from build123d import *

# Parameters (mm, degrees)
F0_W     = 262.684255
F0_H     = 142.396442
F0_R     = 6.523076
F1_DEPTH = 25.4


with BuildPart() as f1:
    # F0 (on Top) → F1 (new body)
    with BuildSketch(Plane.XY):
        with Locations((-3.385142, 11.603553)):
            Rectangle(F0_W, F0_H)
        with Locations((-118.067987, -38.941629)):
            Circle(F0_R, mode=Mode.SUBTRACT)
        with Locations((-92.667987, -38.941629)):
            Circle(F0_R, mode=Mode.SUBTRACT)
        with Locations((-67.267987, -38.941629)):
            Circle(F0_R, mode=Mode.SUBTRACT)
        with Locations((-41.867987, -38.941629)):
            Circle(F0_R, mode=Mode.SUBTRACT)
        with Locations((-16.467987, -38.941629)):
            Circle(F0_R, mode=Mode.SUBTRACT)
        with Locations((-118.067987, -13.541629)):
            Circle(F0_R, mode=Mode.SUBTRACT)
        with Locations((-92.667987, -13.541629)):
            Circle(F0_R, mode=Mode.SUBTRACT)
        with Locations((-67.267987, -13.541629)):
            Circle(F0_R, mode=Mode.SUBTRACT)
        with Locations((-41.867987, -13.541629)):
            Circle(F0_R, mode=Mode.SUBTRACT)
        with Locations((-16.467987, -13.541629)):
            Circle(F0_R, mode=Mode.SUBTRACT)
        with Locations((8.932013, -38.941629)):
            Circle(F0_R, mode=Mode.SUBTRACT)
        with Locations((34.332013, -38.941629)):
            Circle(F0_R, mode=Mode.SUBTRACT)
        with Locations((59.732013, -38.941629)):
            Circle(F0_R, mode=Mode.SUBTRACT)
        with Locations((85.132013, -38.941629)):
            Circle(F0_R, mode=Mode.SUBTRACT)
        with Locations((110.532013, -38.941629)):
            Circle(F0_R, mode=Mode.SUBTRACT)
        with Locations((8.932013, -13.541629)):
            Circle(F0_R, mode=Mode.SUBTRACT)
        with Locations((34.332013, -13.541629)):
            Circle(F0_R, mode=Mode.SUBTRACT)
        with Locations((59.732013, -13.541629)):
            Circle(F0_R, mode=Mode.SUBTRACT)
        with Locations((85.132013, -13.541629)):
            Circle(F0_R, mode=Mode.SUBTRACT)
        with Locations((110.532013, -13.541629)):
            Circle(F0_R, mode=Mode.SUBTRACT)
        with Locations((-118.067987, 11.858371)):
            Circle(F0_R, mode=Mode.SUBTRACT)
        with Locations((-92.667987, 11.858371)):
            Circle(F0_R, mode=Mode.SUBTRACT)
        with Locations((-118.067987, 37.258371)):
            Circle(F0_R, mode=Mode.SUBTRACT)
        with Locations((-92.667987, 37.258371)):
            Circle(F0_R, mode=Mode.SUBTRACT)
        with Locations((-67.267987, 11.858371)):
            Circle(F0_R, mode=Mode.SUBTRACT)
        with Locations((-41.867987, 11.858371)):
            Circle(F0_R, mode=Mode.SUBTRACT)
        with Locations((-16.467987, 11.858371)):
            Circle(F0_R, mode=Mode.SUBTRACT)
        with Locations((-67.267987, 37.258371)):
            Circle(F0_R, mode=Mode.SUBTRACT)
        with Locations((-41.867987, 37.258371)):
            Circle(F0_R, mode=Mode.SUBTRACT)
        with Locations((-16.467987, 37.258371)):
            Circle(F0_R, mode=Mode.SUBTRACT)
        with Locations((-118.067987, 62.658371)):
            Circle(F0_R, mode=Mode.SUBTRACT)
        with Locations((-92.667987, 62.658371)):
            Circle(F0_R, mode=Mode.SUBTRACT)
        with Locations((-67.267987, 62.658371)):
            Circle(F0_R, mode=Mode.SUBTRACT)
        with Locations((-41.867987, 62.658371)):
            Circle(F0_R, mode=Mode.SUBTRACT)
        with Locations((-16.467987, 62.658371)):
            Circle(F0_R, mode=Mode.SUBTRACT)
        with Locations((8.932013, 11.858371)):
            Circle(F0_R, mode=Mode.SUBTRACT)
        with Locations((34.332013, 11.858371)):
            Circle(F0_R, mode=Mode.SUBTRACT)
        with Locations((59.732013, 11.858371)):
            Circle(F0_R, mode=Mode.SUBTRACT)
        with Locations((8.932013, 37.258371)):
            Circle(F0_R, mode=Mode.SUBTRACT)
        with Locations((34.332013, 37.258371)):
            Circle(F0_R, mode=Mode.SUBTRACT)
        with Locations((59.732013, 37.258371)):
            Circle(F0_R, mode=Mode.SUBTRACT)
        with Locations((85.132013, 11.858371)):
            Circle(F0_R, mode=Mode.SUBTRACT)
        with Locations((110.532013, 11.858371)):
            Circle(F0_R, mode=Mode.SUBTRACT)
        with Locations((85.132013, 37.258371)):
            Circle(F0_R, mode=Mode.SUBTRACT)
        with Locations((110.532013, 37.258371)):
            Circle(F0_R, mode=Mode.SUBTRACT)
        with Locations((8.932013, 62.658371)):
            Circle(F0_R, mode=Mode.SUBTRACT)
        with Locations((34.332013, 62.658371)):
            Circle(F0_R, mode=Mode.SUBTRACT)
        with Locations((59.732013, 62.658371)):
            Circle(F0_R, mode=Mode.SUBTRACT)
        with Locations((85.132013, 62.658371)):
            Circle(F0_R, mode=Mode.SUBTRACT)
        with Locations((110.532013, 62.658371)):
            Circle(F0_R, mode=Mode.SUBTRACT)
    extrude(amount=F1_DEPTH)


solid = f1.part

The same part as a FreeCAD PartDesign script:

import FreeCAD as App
import Part
import Sketcher

V = App.Vector
Q = App.Units.Quantity

doc = App.newDocument("Part")
body = doc.addObject("PartDesign::Body", "Body")

# Sketch on XY plane
sketch1 = doc.addObject("Sketcher::SketchObject", "Sketch")
body.addObject(sketch1)
sketch1.AttachmentSupport = (doc.XY_Plane, [""])
sketch1.MapMode = "FlatFace"
sketch1.addGeometry(Part.LineSegment(V(-134.72727, 82.801774, 0), V(-134.72727, -59.594668, 0)), False)
sketch1.addGeometry(Part.LineSegment(V(-134.72727, -59.594668, 0), V(127.956986, -59.594668, 0)), False)
sketch1.addGeometry(Part.LineSegment(V(127.956986, -59.594668, 0), V(127.956986, 82.801774, 0)), False)
sketch1.addGeometry(Part.LineSegment(V(127.956986, 82.801774, 0), V(-134.72727, 82.801774, 0)), False)
sketch1.addGeometry(Part.Circle(V(-118.067987, -38.941629, 0), V(0, 0, 1), 6.523076), False)
sketch1.addGeometry(Part.Circle(V(-92.667987, -38.941629, 0), V(0, 0, 1), 6.523076), False)
sketch1.addGeometry(Part.Circle(V(-67.267987, -38.941629, 0), V(0, 0, 1), 6.523076), False)
sketch1.addGeometry(Part.Circle(V(-41.867987, -38.941629, 0), V(0, 0, 1), 6.523076), False)
sketch1.addGeometry(Part.Circle(V(-16.467987, -38.941629, 0), V(0, 0, 1), 6.523076), False)
sketch1.addGeometry(Part.Circle(V(-118.067987, -13.541629, 0), V(0, 0, 1), 6.523076), False)
sketch1.addGeometry(Part.Circle(V(-92.667987, -13.541629, 0), V(0, 0, 1), 6.523076), False)
sketch1.addGeometry(Part.Circle(V(-67.267987, -13.541629, 0), V(0, 0, 1), 6.523076), False)
sketch1.addGeometry(Part.Circle(V(-118.067987, 11.858371, 0), V(0, 0, 1), 6.523076), False)
sketch1.addGeometry(Part.Circle(V(-92.667987, 11.858371, 0), V(0, 0, 1), 6.523076), False)
sketch1.addGeometry(Part.Circle(V(-67.267987, 11.858371, 0), V(0, 0, 1), 6.523076), False)
sketch1.addGeometry(Part.Circle(V(-41.867987, -13.541629, 0), V(0, 0, 1), 6.523076), False)
sketch1.addGeometry(Part.Circle(V(-16.467987, -13.541629, 0), V(0, 0, 1), 6.523076), False)
sketch1.addGeometry(Part.Circle(V(-41.867987, 11.858371, 0), V(0, 0, 1), 6.523076), False)
sketch1.addGeometry(Part.Circle(V(-16.467987, 11.858371, 0), V(0, 0, 1), 6.523076), False)
sketch1.addGeometry(Part.Circle(V(8.932013, -38.941629, 0), V(0, 0, 1), 6.523076), False)
sketch1.addGeometry(Part.Circle(V(34.332013, -38.941629, 0), V(0, 0, 1), 6.523076), False)
sketch1.addGeometry(Part.Circle(V(59.732013, -38.941629, 0), V(0, 0, 1), 6.523076), False)
sketch1.addGeometry(Part.Circle(V(85.132013, -38.941629, 0), V(0, 0, 1), 6.523076), False)
sketch1.addGeometry(Part.Circle(V(110.532013, -38.941629, 0), V(0, 0, 1), 6.523076), False)
sketch1.addGeometry(Part.Circle(V(8.932013, -13.541629, 0), V(0, 0, 1), 6.523076), False)
sketch1.addGeometry(Part.Circle(V(34.332013, -13.541629, 0), V(0, 0, 1), 6.523076), False)
sketch1.addGeometry(Part.Circle(V(8.932013, 11.858371, 0), V(0, 0, 1), 6.523076), False)
sketch1.addGeometry(Part.Circle(V(34.332013, 11.858371, 0), V(0, 0, 1), 6.523076), False)
sketch1.addGeometry(Part.Circle(V(59.732013, -13.541629, 0), V(0, 0, 1), 6.523076), False)
sketch1.addGeometry(Part.Circle(V(85.132013, -13.541629, 0), V(0, 0, 1), 6.523076), False)
sketch1.addGeometry(Part.Circle(V(110.532013, -13.541629, 0), V(0, 0, 1), 6.523076), False)
sketch1.addGeometry(Part.Circle(V(59.732013, 11.858371, 0), V(0, 0, 1), 6.523076), False)
sketch1.addGeometry(Part.Circle(V(85.132013, 11.858371, 0), V(0, 0, 1), 6.523076), False)
sketch1.addGeometry(Part.Circle(V(110.532013, 11.858371, 0), V(0, 0, 1), 6.523076), False)
sketch1.addGeometry(Part.Circle(V(-118.067987, 37.258371, 0), V(0, 0, 1), 6.523076), False)
sketch1.addGeometry(Part.Circle(V(-92.667987, 37.258371, 0), V(0, 0, 1), 6.523076), False)
sketch1.addGeometry(Part.Circle(V(-67.267987, 37.258371, 0), V(0, 0, 1), 6.523076), False)
sketch1.addGeometry(Part.Circle(V(-41.867987, 37.258371, 0), V(0, 0, 1), 6.523076), False)
sketch1.addGeometry(Part.Circle(V(-16.467987, 37.258371, 0), V(0, 0, 1), 6.523076), False)
sketch1.addGeometry(Part.Circle(V(-118.067987, 62.658371, 0), V(0, 0, 1), 6.523076), False)
sketch1.addGeometry(Part.Circle(V(-92.667987, 62.658371, 0), V(0, 0, 1), 6.523076), False)
sketch1.addGeometry(Part.Circle(V(-67.267987, 62.658371, 0), V(0, 0, 1), 6.523076), False)
sketch1.addGeometry(Part.Circle(V(-41.867987, 62.658371, 0), V(0, 0, 1), 6.523076), False)
sketch1.addGeometry(Part.Circle(V(-16.467987, 62.658371, 0), V(0, 0, 1), 6.523076), False)
sketch1.addGeometry(Part.Circle(V(8.932013, 37.258371, 0), V(0, 0, 1), 6.523076), False)
sketch1.addGeometry(Part.Circle(V(34.332013, 37.258371, 0), V(0, 0, 1), 6.523076), False)
sketch1.addGeometry(Part.Circle(V(59.732013, 37.258371, 0), V(0, 0, 1), 6.523076), False)
sketch1.addGeometry(Part.Circle(V(85.132013, 37.258371, 0), V(0, 0, 1), 6.523076), False)
sketch1.addGeometry(Part.Circle(V(110.532013, 37.258371, 0), V(0, 0, 1), 6.523076), False)
sketch1.addGeometry(Part.Circle(V(8.932013, 62.658371, 0), V(0, 0, 1), 6.523076), False)
sketch1.addGeometry(Part.Circle(V(34.332013, 62.658371, 0), V(0, 0, 1), 6.523076), False)
sketch1.addGeometry(Part.Circle(V(59.732013, 62.658371, 0), V(0, 0, 1), 6.523076), False)
sketch1.addGeometry(Part.Circle(V(85.132013, 62.658371, 0), V(0, 0, 1), 6.523076), False)
sketch1.addGeometry(Part.Circle(V(110.532013, 62.658371, 0), V(0, 0, 1), 6.523076), False)
sketch1.addConstraint(Sketcher.Constraint("Coincident", 0, 2, 1, 1))
sketch1.addConstraint(Sketcher.Constraint("Coincident", 1, 2, 2, 1))
sketch1.addConstraint(Sketcher.Constraint("Coincident", 2, 2, 3, 1))
sketch1.addConstraint(Sketcher.Constraint("Coincident", 3, 2, 0, 1))
sketch1.addConstraint(Sketcher.Constraint("Vertical", 0))
sketch1.addConstraint(Sketcher.Constraint("Horizontal", 1))
sketch1.addConstraint(Sketcher.Constraint("Vertical", 2))
sketch1.addConstraint(Sketcher.Constraint("Horizontal", 3))
sketch1.addConstraint(Sketcher.Constraint("Equal", 4, 5))
sketch1.addConstraint(Sketcher.Constraint("Equal", 5, 6))
sketch1.addConstraint(Sketcher.Constraint("Equal", 6, 7))
sketch1.addConstraint(Sketcher.Constraint("Equal", 7, 8))
sketch1.addConstraint(Sketcher.Constraint("Equal", 8, 9))
sketch1.addConstraint(Sketcher.Constraint("Equal", 9, 10))
sketch1.addConstraint(Sketcher.Constraint("Equal", 10, 11))
sketch1.addConstraint(Sketcher.Constraint("Equal", 11, 12))
sketch1.addConstraint(Sketcher.Constraint("Equal", 12, 13))
sketch1.addConstraint(Sketcher.Constraint("Equal", 13, 14))
sketch1.addConstraint(Sketcher.Constraint("Equal", 14, 15))
sketch1.addConstraint(Sketcher.Constraint("Equal", 15, 16))
sketch1.addConstraint(Sketcher.Constraint("Equal", 16, 17))
sketch1.addConstraint(Sketcher.Constraint("Equal", 17, 18))
sketch1.addConstraint(Sketcher.Constraint("Equal", 18, 19))
sketch1.addConstraint(Sketcher.Constraint("Equal", 19, 20))
sketch1.addConstraint(Sketcher.Constraint("Equal", 20, 21))
sketch1.addConstraint(Sketcher.Constraint("Equal", 21, 22))
sketch1.addConstraint(Sketcher.Constraint("Equal", 22, 23))
sketch1.addConstraint(Sketcher.Constraint("Equal", 23, 24))
sketch1.addConstraint(Sketcher.Constraint("Equal", 24, 25))
sketch1.addConstraint(Sketcher.Constraint("Equal", 25, 26))
sketch1.addConstraint(Sketcher.Constraint("Equal", 26, 27))
sketch1.addConstraint(Sketcher.Constraint("Equal", 27, 28))
sketch1.addConstraint(Sketcher.Constraint("Equal", 28, 29))
sketch1.addConstraint(Sketcher.Constraint("Equal", 29, 30))
sketch1.addConstraint(Sketcher.Constraint("Equal", 30, 31))
sketch1.addConstraint(Sketcher.Constraint("Equal", 31, 32))
sketch1.addConstraint(Sketcher.Constraint("Equal", 32, 33))
sketch1.addConstraint(Sketcher.Constraint("Equal", 33, 34))
sketch1.addConstraint(Sketcher.Constraint("Equal", 34, 35))
sketch1.addConstraint(Sketcher.Constraint("Equal", 35, 36))
sketch1.addConstraint(Sketcher.Constraint("Equal", 36, 37))
sketch1.addConstraint(Sketcher.Constraint("Equal", 37, 38))
sketch1.addConstraint(Sketcher.Constraint("Equal", 38, 39))
sketch1.addConstraint(Sketcher.Constraint("Equal", 39, 40))
sketch1.addConstraint(Sketcher.Constraint("Equal", 40, 41))
sketch1.addConstraint(Sketcher.Constraint("Equal", 41, 42))
sketch1.addConstraint(Sketcher.Constraint("Equal", 42, 43))
sketch1.addConstraint(Sketcher.Constraint("Equal", 43, 44))
sketch1.addConstraint(Sketcher.Constraint("Equal", 44, 45))
sketch1.addConstraint(Sketcher.Constraint("Equal", 45, 46))
sketch1.addConstraint(Sketcher.Constraint("Equal", 46, 47))
sketch1.addConstraint(Sketcher.Constraint("Equal", 47, 48))
sketch1.addConstraint(Sketcher.Constraint("Equal", 48, 49))
sketch1.addConstraint(Sketcher.Constraint("Equal", 49, 50))
sketch1.addConstraint(Sketcher.Constraint("Equal", 50, 51))
sketch1.addConstraint(Sketcher.Constraint("Equal", 51, 52))
sketch1.addConstraint(Sketcher.Constraint("Equal", 52, 53))
sketch1.addConstraint(Sketcher.Constraint("Horizontal", 4, 3, 5, 3))
sketch1.addConstraint(Sketcher.Constraint("Horizontal", 5, 3, 6, 3))
sketch1.addConstraint(Sketcher.Constraint("Horizontal", 6, 3, 7, 3))
sketch1.addConstraint(Sketcher.Constraint("Horizontal", 7, 3, 8, 3))
sketch1.addConstraint(Sketcher.Constraint("Horizontal", 9, 3, 10, 3))
sketch1.addConstraint(Sketcher.Constraint("Horizontal", 10, 3, 11, 3))
sketch1.addConstraint(Sketcher.Constraint("Horizontal", 12, 3, 13, 3))
sketch1.addConstraint(Sketcher.Constraint("Horizontal", 13, 3, 14, 3))
sketch1.addConstraint(Sketcher.Constraint("Horizontal", 11, 3, 15, 3))
sketch1.addConstraint(Sketcher.Constraint("Horizontal", 15, 3, 16, 3))
sketch1.addConstraint(Sketcher.Constraint("Horizontal", 14, 3, 17, 3))
sketch1.addConstraint(Sketcher.Constraint("Horizontal", 17, 3, 18, 3))
sketch1.addConstraint(Sketcher.Constraint("Horizontal", 8, 3, 19, 3))
sketch1.addConstraint(Sketcher.Constraint("Horizontal", 19, 3, 20, 3))
sketch1.addConstraint(Sketcher.Constraint("Horizontal", 20, 3, 21, 3))
sketch1.addConstraint(Sketcher.Constraint("Horizontal", 21, 3, 22, 3))
sketch1.addConstraint(Sketcher.Constraint("Horizontal", 22, 3, 23, 3))
sketch1.addConstraint(Sketcher.Constraint("Horizontal", 16, 3, 24, 3))
sketch1.addConstraint(Sketcher.Constraint("Horizontal", 24, 3, 25, 3))
sketch1.addConstraint(Sketcher.Constraint("Horizontal", 18, 3, 26, 3))
sketch1.addConstraint(Sketcher.Constraint("Horizontal", 26, 3, 27, 3))
sketch1.addConstraint(Sketcher.Constraint("Horizontal", 25, 3, 28, 3))
sketch1.addConstraint(Sketcher.Constraint("Horizontal", 28, 3, 29, 3))
sketch1.addConstraint(Sketcher.Constraint("Horizontal", 29, 3, 30, 3))
sketch1.addConstraint(Sketcher.Constraint("Horizontal", 27, 3, 31, 3))
sketch1.addConstraint(Sketcher.Constraint("Horizontal", 31, 3, 32, 3))
sketch1.addConstraint(Sketcher.Constraint("Horizontal", 32, 3, 33, 3))
sketch1.addConstraint(Sketcher.Constraint("Horizontal", 34, 3, 35, 3))
sketch1.addConstraint(Sketcher.Constraint("Horizontal", 35, 3, 36, 3))
sketch1.addConstraint(Sketcher.Constraint("Horizontal", 36, 3, 37, 3))
sketch1.addConstraint(Sketcher.Constraint("Horizontal", 37, 3, 38, 3))
sketch1.addConstraint(Sketcher.Constraint("Horizontal", 39, 3, 40, 3))
sketch1.addConstraint(Sketcher.Constraint("Horizontal", 40, 3, 41, 3))
sketch1.addConstraint(Sketcher.Constraint("Horizontal", 41, 3, 42, 3))
sketch1.addConstraint(Sketcher.Constraint("Horizontal", 42, 3, 43, 3))
sketch1.addConstraint(Sketcher.Constraint("Horizontal", 38, 3, 44, 3))
sketch1.addConstraint(Sketcher.Constraint("Horizontal", 44, 3, 45, 3))
sketch1.addConstraint(Sketcher.Constraint("Horizontal", 45, 3, 46, 3))
sketch1.addConstraint(Sketcher.Constraint("Horizontal", 46, 3, 47, 3))
sketch1.addConstraint(Sketcher.Constraint("Horizontal", 47, 3, 48, 3))
sketch1.addConstraint(Sketcher.Constraint("Horizontal", 43, 3, 49, 3))
sketch1.addConstraint(Sketcher.Constraint("Horizontal", 49, 3, 50, 3))
sketch1.addConstraint(Sketcher.Constraint("Horizontal", 50, 3, 51, 3))
sketch1.addConstraint(Sketcher.Constraint("Horizontal", 51, 3, 52, 3))
sketch1.addConstraint(Sketcher.Constraint("Horizontal", 52, 3, 53, 3))
sketch1.addConstraint(Sketcher.Constraint("Vertical", 4, 3, 9, 3))
sketch1.addConstraint(Sketcher.Constraint("Vertical", 5, 3, 10, 3))
sketch1.addConstraint(Sketcher.Constraint("Vertical", 6, 3, 11, 3))
sketch1.addConstraint(Sketcher.Constraint("Vertical", 9, 3, 12, 3))
sketch1.addConstraint(Sketcher.Constraint("Vertical", 10, 3, 13, 3))
sketch1.addConstraint(Sketcher.Constraint("Vertical", 11, 3, 14, 3))
sketch1.addConstraint(Sketcher.Constraint("Vertical", 7, 3, 15, 3))
sketch1.addConstraint(Sketcher.Constraint("Vertical", 8, 3, 16, 3))
sketch1.addConstraint(Sketcher.Constraint("Vertical", 15, 3, 17, 3))
sketch1.addConstraint(Sketcher.Constraint("Vertical", 16, 3, 18, 3))
sketch1.addConstraint(Sketcher.Constraint("Vertical", 19, 3, 24, 3))
sketch1.addConstraint(Sketcher.Constraint("Vertical", 20, 3, 25, 3))
sketch1.addConstraint(Sketcher.Constraint("Vertical", 24, 3, 26, 3))
sketch1.addConstraint(Sketcher.Constraint("Vertical", 25, 3, 27, 3))
sketch1.addConstraint(Sketcher.Constraint("Vertical", 21, 3, 28, 3))
sketch1.addConstraint(Sketcher.Constraint("Vertical", 22, 3, 29, 3))
sketch1.addConstraint(Sketcher.Constraint("Vertical", 23, 3, 30, 3))
sketch1.addConstraint(Sketcher.Constraint("Vertical", 28, 3, 31, 3))
sketch1.addConstraint(Sketcher.Constraint("Vertical", 29, 3, 32, 3))
sketch1.addConstraint(Sketcher.Constraint("Vertical", 30, 3, 33, 3))
sketch1.addConstraint(Sketcher.Constraint("Vertical", 12, 3, 34, 3))
sketch1.addConstraint(Sketcher.Constraint("Vertical", 13, 3, 35, 3))
sketch1.addConstraint(Sketcher.Constraint("Vertical", 14, 3, 36, 3))
sketch1.addConstraint(Sketcher.Constraint("Vertical", 17, 3, 37, 3))
sketch1.addConstraint(Sketcher.Constraint("Vertical", 18, 3, 38, 3))
sketch1.addConstraint(Sketcher.Constraint("Vertical", 34, 3, 39, 3))
sketch1.addConstraint(Sketcher.Constraint("Vertical", 35, 3, 40, 3))
sketch1.addConstraint(Sketcher.Constraint("Vertical", 36, 3, 41, 3))
sketch1.addConstraint(Sketcher.Constraint("Vertical", 37, 3, 42, 3))
sketch1.addConstraint(Sketcher.Constraint("Vertical", 38, 3, 43, 3))
sketch1.addConstraint(Sketcher.Constraint("Vertical", 26, 3, 44, 3))
sketch1.addConstraint(Sketcher.Constraint("Vertical", 27, 3, 45, 3))
sketch1.addConstraint(Sketcher.Constraint("Vertical", 31, 3, 46, 3))
sketch1.addConstraint(Sketcher.Constraint("Vertical", 32, 3, 47, 3))
sketch1.addConstraint(Sketcher.Constraint("Vertical", 33, 3, 48, 3))
sketch1.addConstraint(Sketcher.Constraint("Vertical", 44, 3, 49, 3))
sketch1.addConstraint(Sketcher.Constraint("Vertical", 45, 3, 50, 3))
sketch1.addConstraint(Sketcher.Constraint("Vertical", 46, 3, 51, 3))
sketch1.addConstraint(Sketcher.Constraint("Vertical", 47, 3, 52, 3))
sketch1.addConstraint(Sketcher.Constraint("Vertical", 48, 3, 53, 3))
sketch1.addConstraint(Sketcher.Constraint("DistanceX", 4, 3, 5, 3, Q("1 in")))
sketch1.addConstraint(Sketcher.Constraint("DistanceX", 5, 3, 6, 3, Q("1 in")))
sketch1.addConstraint(Sketcher.Constraint("DistanceX", 6, 3, 7, 3, Q("1 in")))
sketch1.addConstraint(Sketcher.Constraint("DistanceX", 7, 3, 8, 3, Q("1 in")))
sketch1.addConstraint(Sketcher.Constraint("DistanceY", 4, 3, 9, 3, Q("1 in")))
sketch1.addConstraint(Sketcher.Constraint("DistanceY", 9, 3, 12, 3, Q("1 in")))
sketch1.addConstraint(Sketcher.Constraint("DistanceX", 8, 3, 19, 3, Q("1 in")))
sketch1.addConstraint(Sketcher.Constraint("DistanceX", 19, 3, 20, 3, Q("1 in")))
sketch1.addConstraint(Sketcher.Constraint("DistanceX", 20, 3, 21, 3, Q("1 in")))
sketch1.addConstraint(Sketcher.Constraint("DistanceX", 21, 3, 22, 3, Q("1 in")))
sketch1.addConstraint(Sketcher.Constraint("DistanceX", 22, 3, 23, 3, Q("1 in")))
sketch1.addConstraint(Sketcher.Constraint("DistanceY", 12, 3, 34, 3, Q("1 in")))
sketch1.addConstraint(Sketcher.Constraint("DistanceY", 34, 3, 39, 3, Q("1 in")))
sketch1.addConstraint(Sketcher.Constraint("Diameter", 4, Q("13.046152 mm")))
sketch1.addConstraint(Sketcher.Constraint("DistanceX", 1, 1, 1, 2, Q("10.3418998 in")))
sketch1.addConstraint(Sketcher.Constraint("DistanceY", 0, 2, 0, 1, Q("142.396442 mm")))
sketch1.addConstraint(Sketcher.Constraint("DistanceY", 4, 3, -1, 1, Q("38.941629 mm")))
sketch1.addConstraint(Sketcher.Constraint("DistanceX", 0, 2, -1, 1, Q("134.72727 mm")))
sketch1.addConstraint(Sketcher.Constraint("DistanceY", 0, 2, 4, 3, Q("20.653039 mm")))
sketch1.addConstraint(Sketcher.Constraint("DistanceX", 4, 3, -1, 1, Q("118.067987 mm")))
pad1 = doc.addObject("PartDesign::Pad", "Pad")
body.addObject(pad1)
pad1.Profile = sketch1
pad1.Length = Q("1 in")

doc.recompute()
